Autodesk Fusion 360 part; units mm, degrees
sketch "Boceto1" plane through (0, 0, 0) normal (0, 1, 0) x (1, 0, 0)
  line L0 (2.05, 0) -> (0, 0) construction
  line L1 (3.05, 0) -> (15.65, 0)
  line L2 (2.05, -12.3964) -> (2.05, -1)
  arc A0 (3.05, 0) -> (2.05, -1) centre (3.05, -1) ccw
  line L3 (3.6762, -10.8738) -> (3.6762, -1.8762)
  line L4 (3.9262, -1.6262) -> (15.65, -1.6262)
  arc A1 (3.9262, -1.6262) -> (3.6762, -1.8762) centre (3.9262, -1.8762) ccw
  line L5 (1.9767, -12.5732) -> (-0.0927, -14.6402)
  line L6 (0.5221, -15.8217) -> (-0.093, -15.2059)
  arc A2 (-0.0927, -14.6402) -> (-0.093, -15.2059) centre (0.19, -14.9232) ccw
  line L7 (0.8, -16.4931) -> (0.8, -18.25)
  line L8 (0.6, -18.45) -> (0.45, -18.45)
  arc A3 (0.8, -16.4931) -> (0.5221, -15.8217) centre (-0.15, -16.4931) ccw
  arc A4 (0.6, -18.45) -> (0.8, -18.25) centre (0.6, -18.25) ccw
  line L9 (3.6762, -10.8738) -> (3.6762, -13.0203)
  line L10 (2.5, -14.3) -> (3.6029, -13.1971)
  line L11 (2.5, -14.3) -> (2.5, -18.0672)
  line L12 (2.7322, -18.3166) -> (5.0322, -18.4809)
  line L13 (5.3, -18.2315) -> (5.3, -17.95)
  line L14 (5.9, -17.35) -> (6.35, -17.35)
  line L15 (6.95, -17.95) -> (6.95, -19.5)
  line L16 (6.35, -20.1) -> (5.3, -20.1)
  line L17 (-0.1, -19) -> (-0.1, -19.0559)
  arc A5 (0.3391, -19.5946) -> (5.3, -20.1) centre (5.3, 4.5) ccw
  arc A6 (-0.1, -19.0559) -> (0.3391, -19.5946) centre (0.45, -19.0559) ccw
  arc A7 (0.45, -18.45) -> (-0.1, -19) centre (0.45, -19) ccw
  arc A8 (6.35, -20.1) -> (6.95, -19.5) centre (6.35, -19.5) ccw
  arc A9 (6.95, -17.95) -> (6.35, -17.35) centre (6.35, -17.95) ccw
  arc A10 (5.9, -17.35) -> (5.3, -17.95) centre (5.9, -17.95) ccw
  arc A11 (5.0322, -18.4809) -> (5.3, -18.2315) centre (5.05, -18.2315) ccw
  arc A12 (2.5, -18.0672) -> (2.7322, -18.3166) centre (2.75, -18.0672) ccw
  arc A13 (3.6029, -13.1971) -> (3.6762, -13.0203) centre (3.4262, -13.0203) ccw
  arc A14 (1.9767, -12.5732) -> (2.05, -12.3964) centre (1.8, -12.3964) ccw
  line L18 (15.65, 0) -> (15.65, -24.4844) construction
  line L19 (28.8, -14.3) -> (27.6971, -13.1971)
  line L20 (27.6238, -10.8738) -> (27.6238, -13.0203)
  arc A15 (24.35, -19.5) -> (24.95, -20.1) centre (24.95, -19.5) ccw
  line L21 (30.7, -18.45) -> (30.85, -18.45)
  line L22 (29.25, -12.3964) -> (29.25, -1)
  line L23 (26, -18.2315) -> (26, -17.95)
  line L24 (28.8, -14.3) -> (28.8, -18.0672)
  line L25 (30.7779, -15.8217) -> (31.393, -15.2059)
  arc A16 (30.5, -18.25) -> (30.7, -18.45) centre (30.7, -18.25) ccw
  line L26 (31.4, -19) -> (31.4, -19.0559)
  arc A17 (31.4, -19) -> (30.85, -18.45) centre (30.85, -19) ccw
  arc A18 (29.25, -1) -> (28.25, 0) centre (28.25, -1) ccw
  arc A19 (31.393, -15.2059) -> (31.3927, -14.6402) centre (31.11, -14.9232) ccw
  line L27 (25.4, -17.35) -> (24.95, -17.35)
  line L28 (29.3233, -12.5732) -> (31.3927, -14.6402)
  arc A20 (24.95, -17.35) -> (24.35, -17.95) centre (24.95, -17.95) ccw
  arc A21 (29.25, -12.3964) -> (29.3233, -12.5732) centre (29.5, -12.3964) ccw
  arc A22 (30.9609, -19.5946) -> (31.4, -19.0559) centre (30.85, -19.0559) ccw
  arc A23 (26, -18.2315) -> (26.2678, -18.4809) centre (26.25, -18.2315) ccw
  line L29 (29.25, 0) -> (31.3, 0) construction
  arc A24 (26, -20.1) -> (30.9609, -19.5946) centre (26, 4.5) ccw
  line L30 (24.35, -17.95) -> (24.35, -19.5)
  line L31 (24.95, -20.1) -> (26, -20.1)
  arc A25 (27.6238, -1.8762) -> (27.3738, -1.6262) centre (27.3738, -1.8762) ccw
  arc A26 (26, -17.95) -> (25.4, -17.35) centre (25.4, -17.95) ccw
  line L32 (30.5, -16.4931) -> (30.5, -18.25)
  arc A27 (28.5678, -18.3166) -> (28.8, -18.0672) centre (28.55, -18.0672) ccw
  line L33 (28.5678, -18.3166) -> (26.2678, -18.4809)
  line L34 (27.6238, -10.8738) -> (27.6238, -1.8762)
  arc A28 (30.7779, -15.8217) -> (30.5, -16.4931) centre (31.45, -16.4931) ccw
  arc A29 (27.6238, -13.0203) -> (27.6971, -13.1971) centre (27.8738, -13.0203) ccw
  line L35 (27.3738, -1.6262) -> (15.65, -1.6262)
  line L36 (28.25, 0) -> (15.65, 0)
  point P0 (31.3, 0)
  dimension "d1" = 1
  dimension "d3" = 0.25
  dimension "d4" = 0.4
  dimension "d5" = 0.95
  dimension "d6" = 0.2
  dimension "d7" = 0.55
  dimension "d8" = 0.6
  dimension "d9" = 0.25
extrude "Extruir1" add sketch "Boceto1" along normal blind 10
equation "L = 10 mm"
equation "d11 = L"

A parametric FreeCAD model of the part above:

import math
import FreeCAD as App
import Part
import Sketcher
from FreeCAD import Vector

doc = App.newDocument("Part")
body = doc.addObject("PartDesign::Body", "Body")

# Sketch on XZ plane
sketch1 = body.newObject("Sketcher::SketchObject", "Sketch")
sketch1.AttachmentSupport = (doc.getObject("XZ_Plane"), [""])
sketch1.MapMode = "FlatFace"
sketch1.addGeometry(Part.LineSegment(Vector(28.25, 0, 0), Vector(3.05, 0, 0)), False)
sketch1.addGeometry(Part.ArcOfCircle(Part.Circle(Vector(3.05, 1, 0), Vector(0, 0, 1), 1), math.radians(180), math.radians(270)), False)
sketch1.addGeometry(Part.LineSegment(Vector(2.05, 1, 0), Vector(2.05, 12.4, 0)), False)
sketch1.addGeometry(Part.ArcOfCircle(Part.Circle(Vector(1.8, 12.4, 0), Vector(0, 0, 1), 0.25), math.radians(0), math.radians(45)), False)
sketch1.addGeometry(Part.LineSegment(Vector(1.98, 12.57, 0), Vector(-0.09, 14.64, 0)), False)
sketch1.addGeometry(Part.ArcOfCircle(Part.Circle(Vector(0.19, 14.92, 0), Vector(0, 0, 1), 0.4), math.radians(135), math.radians(225)), False)
sketch1.addGeometry(Part.LineSegment(Vector(-0.09, 15.21, 0), Vector(0.52, 15.82, 0)), False)
sketch1.addGeometry(Part.ArcOfCircle(Part.Circle(Vector(-0.15, 16.49, 0), Vector(0, 0, 1), 0.95), math.radians(-45), math.radians(0)), False)
sketch1.addGeometry(Part.LineSegment(Vector(0.8, 16.49, 0), Vector(0.8, 18.25, 0)), False)
sketch1.addGeometry(Part.ArcOfCircle(Part.Circle(Vector(0.6, 18.25, 0), Vector(0, 0, 1), 0.2), math.radians(0), math.radians(90)), False)
sketch1.addGeometry(Part.LineSegment(Vector(0.6, 18.45, 0), Vector(0.45, 18.45, 0)), False)
sketch1.addGeometry(Part.ArcOfCircle(Part.Circle(Vector(0.45, 19, 0), Vector(0, 0, 1), 0.55), math.radians(180), math.radians(270)), False)
sketch1.addGeometry(Part.LineSegment(Vector(-0.1, 19, 0), Vector(-0.1, 19.06, 0)), False)
sketch1.addGeometry(Part.ArcOfCircle(Part.Circle(Vector(0.45, 19.06, 0), Vector(0, 0, 1), 0.55), math.radians(102), math.radians(180)), False)
sketch1.addGeometry(Part.ArcOfCircle(Part.Circle(Vector(5.3, -4.5, 0), Vector(0, 0, 1), 24.6), math.radians(90), math.radians(101.63)), False)
sketch1.addGeometry(Part.LineSegment(Vector(5.3, 20.1, 0), Vector(6.35, 20.1, 0)), False)
sketch1.addGeometry(Part.ArcOfCircle(Part.Circle(Vector(6.35, 19.5, 0), Vector(0, 0, 1), 0.6), math.radians(0), math.radians(90)), False)
sketch1.addGeometry(Part.LineSegment(Vector(6.95, 19.5, 0), Vector(6.95, 17.95, 0)), False)
sketch1.addGeometry(Part.ArcOfCircle(Part.Circle(Vector(6.35, 17.95, 0), Vector(0, 0, 1), 0.6), math.radians(-90), math.radians(0)), False)
sketch1.addGeometry(Part.LineSegment(Vector(6.35, 17.35, 0), Vector(5.9, 17.35, 0)), False)
sketch1.addGeometry(Part.ArcOfCircle(Part.Circle(Vector(5.9, 17.95, 0), Vector(0, 0, 1), 0.6), math.radians(180), math.radians(270)), False)
sketch1.addGeometry(Part.LineSegment(Vector(5.3, 17.95, 0), Vector(5.3, 18.23, 0)), False)
sketch1.addGeometry(Part.ArcOfCircle(Part.Circle(Vector(5.05, 18.23, 0), Vector(0, 0, 1), 0.25), math.radians(0), math.radians(94)), False)
sketch1.addGeometry(Part.LineSegment(Vector(5.03, 18.48, 0), Vector(2.73, 18.32, 0)), False)
sketch1.addGeometry(Part.ArcOfCircle(Part.Circle(Vector(2.75, 18.07, 0), Vector(0, 0, 1), 0.25), math.radians(94), math.radians(180)), False)
sketch1.addGeometry(Part.LineSegment(Vector(2.5, 18.07, 0), Vector(2.5, 14.3, 0)), False)
sketch1.addGeometry(Part.LineSegment(Vector(2.5, 14.3, 0), Vector(3.6, 13.2, 0)), False)
sketch1.addGeometry(Part.ArcOfCircle(Part.Circle(Vector(3.43, 13.02, 0), Vector(0, 0, 1), 0.25), math.radians(0), math.radians(45)), False)
sketch1.addGeometry(Part.LineSegment(Vector(3.68, 13.02, 0), Vector(3.68, 1.88, 0)), False)
sketch1.addGeometry(Part.ArcOfCircle(Part.Circle(Vector(3.93, 1.88, 0), Vector(0, 0, 1), 0.25), math.radians(180), math.radians(270)), False)
sketch1.addGeometry(Part.LineSegment(Vector(3.93, 1.63, 0), Vector(27.37, 1.63, 0)), False)
sketch1.addGeometry(Part.ArcOfCircle(Part.Circle(Vector(27.37, 1.88, 0), Vector(0, 0, 1), 0.25), math.radians(-90), math.radians(0)), False)
sketch1.addGeometry(Part.LineSegment(Vector(27.62, 1.88, 0), Vector(27.62, 13.02, 0)), False)
sketch1.addGeometry(Part.ArcOfCircle(Part.Circle(Vector(27.87, 13.02, 0), Vector(0, 0, 1), 0.25), math.radians(135), math.radians(180)), False)
sketch1.addGeometry(Part.LineSegment(Vector(27.7, 13.2, 0), Vector(28.8, 14.3, 0)), False)
sketch1.addGeometry(Part.LineSegment(Vector(28.8, 14.3, 0), Vector(28.8, 18.07, 0)), False)
sketch1.addGeometry(Part.ArcOfCircle(Part.Circle(Vector(28.55, 18.07, 0), Vector(0, 0, 1), 0.25), math.radians(0), math.radians(86)), False)
sketch1.addGeometry(Part.LineSegment(Vector(28.57, 18.32, 0), Vector(26.27, 18.48, 0)), False)
sketch1.addGeometry(Part.ArcOfCircle(Part.Circle(Vector(26.25, 18.23, 0), Vector(0, 0, 1), 0.25), math.radians(86), math.radians(180)), False)
sketch1.addGeometry(Part.LineSegment(Vector(26, 18.23, 0), Vector(26, 17.95, 0)), False)
sketch1.addGeometry(Part.ArcOfCircle(Part.Circle(Vector(25.4, 17.95, 0), Vector(0, 0, 1), 0.6), math.radians(-90), math.radians(0)), False)
sketch1.addGeometry(Part.LineSegment(Vector(25.4, 17.35, 0), Vector(24.95, 17.35, 0)), False)
sketch1.addGeometry(Part.ArcOfCircle(Part.Circle(Vector(24.95, 17.95, 0), Vector(0, 0, 1), 0.6), math.radians(180), math.radians(270)), False)
sketch1.addGeometry(Part.LineSegment(Vector(24.35, 17.95, 0), Vector(24.35, 19.5, 0)), False)
sketch1.addGeometry(Part.ArcOfCircle(Part.Circle(Vector(24.95, 19.5, 0), Vector(0, 0, 1), 0.6), math.radians(90), math.radians(180)), False)
sketch1.addGeometry(Part.LineSegment(Vector(24.95, 20.1, 0), Vector(26, 20.1, 0)), False)
sketch1.addGeometry(Part.ArcOfCircle(Part.Circle(Vector(26, -4.5, 0), Vector(0, 0, 1), 24.6), math.radians(78.37), math.radians(90)), False)
sketch1.addGeometry(Part.ArcOfCircle(Part.Circle(Vector(30.85, 19.06, 0), Vector(0, 0, 1), 0.55), math.radians(0), math.radians(78)), False)
sketch1.addGeometry(Part.LineSegment(Vector(31.4, 19.06, 0), Vector(31.4, 19, 0)), False)
sketch1.addGeometry(Part.ArcOfCircle(Part.Circle(Vector(30.85, 19, 0), Vector(0, 0, 1), 0.55), math.radians(-90), math.radians(0)), False)
sketch1.addGeometry(Part.LineSegment(Vector(30.85, 18.45, 0), Vector(30.7, 18.45, 0)), False)
sketch1.addGeometry(Part.ArcOfCircle(Part.Circle(Vector(30.7, 18.25, 0), Vector(0, 0, 1), 0.2), math.radians(90), math.radians(180)), False)
sketch1.addGeometry(Part.LineSegment(Vector(30.5, 18.25, 0), Vector(30.5, 16.49, 0)), False)
sketch1.addGeometry(Part.ArcOfCircle(Part.Circle(Vector(31.45, 16.49, 0), Vector(0, 0, 1), 0.95), math.radians(180), math.radians(225)), False)
sketch1.addGeometry(Part.LineSegment(Vector(30.78, 15.82, 0), Vector(31.39, 15.21, 0)), False)
sketch1.addGeometry(Part.ArcOfCircle(Part.Circle(Vector(31.11, 14.92, 0), Vector(0, 0, 1), 0.4), math.radians(-45), math.radians(45)), False)
sketch1.addGeometry(Part.LineSegment(Vector(31.39, 14.64, 0), Vector(29.32, 12.57, 0)), False)
sketch1.addGeometry(Part.ArcOfCircle(Part.Circle(Vector(29.5, 12.4, 0), Vector(0, 0, 1), 0.25), math.radians(135), math.radians(180)), False)
sketch1.addGeometry(Part.LineSegment(Vector(29.25, 12.4, 0), Vector(29.25, 1, 0)), False)
sketch1.addGeometry(Part.ArcOfCircle(Part.Circle(Vector(28.25, 1, 0), Vector(0, 0, 1), 1), math.radians(-90), math.radians(0)), False)
sketch1.addConstraint(Sketcher.Constraint("Tangent", 0, 2, 1, 2))
sketch1.addConstraint(Sketcher.Constraint("Tangent", 1, 1, 2, 1))
sketch1.addConstraint(Sketcher.Constraint("Tangent", 2, 2, 3, 1))
sketch1.addConstraint(Sketcher.Constraint("Tangent", 3, 2, 4, 1))
sketch1.addConstraint(Sketcher.Constraint("Tangent", 4, 2, 5, 2))
sketch1.addConstraint(Sketcher.Constraint("Tangent", 5, 1, 6, 1))
sketch1.addConstraint(Sketcher.Constraint("Tangent", 6, 2, 7, 1))
sketch1.addConstraint(Sketcher.Constraint("Tangent", 7, 2, 8, 1))
sketch1.addConstraint(Sketcher.Constraint("Tangent", 8, 2, 9, 1))
sketch1.addConstraint(Sketcher.Constraint("Tangent", 9, 2, 10, 1))
sketch1.addConstraint(Sketcher.Constraint("Tangent", 10, 2, 11, 2))
sketch1.addConstraint(Sketcher.Constraint("Tangent", 11, 1, 12, 1))
sketch1.addConstraint(Sketcher.Constraint("Tangent", 12, 2, 13, 2))
sketch1.addConstraint(Sketcher.Constraint("Tangent", 13, 1, 14, 2))
sketch1.addConstraint(Sketcher.Constraint("Tangent", 14, 1, 15, 1))
sketch1.addConstraint(Sketcher.Constraint("Tangent", 15, 2, 16, 2))
sketch1.addConstraint(Sketcher.Constraint("Tangent", 16, 1, 17, 1))
sketch1.addConstraint(Sketcher.Constraint("Tangent", 17, 2, 18, 2))
sketch1.addConstraint(Sketcher.Constraint("Tangent", 18, 1, 19, 1))
sketch1.addConstraint(Sketcher.Constraint("Tangent", 19, 2, 20, 2))
sketch1.addConstraint(Sketcher.Constraint("Tangent", 20, 1, 21, 1))
sketch1.addConstraint(Sketcher.Constraint("Tangent", 21, 2, 22, 1))
sketch1.addConstraint(Sketcher.Constraint("Tangent", 22, 2, 23, 1))
sketch1.addConstraint(Sketcher.Constraint("Tangent", 23, 2, 24, 1))
sketch1.addConstraint(Sketcher.Constraint("Tangent", 24, 2, 25, 1))
sketch1.addConstraint(Sketcher.Constraint("Coincident", 25, 2, 26, 1))
sketch1.addConstraint(Sketcher.Constraint("Tangent", 26, 2, 27, 2))
sketch1.addConstraint(Sketcher.Constraint("Tangent", 27, 1, 28, 1))
sketch1.addConstraint(Sketcher.Constraint("Tangent", 28, 2, 29, 1))
sketch1.addConstraint(Sketcher.Constraint("Tangent", 29, 2, 30, 1))
sketch1.addConstraint(Sketcher.Constraint("Tangent", 30, 2, 31, 1))
sketch1.addConstraint(Sketcher.Constraint("Tangent", 31, 2, 32, 1))
sketch1.addConstraint(Sketcher.Constraint("Tangent", 32, 2, 33, 2))
sketch1.addConstraint(Sketcher.Constraint("Tangent", 33, 1, 34, 1))
sketch1.addConstraint(Sketcher.Constraint("Coincident", 34, 2, 35, 1))
sketch1.addConstraint(Sketcher.Constraint("Tangent", 35, 2, 36, 1))
sketch1.addConstraint(Sketcher.Constraint("Tangent", 36, 2, 37, 1))
sketch1.addConstraint(Sketcher.Constraint("Tangent", 37, 2, 38, 1))
sketch1.addConstraint(Sketcher.Constraint("Tangent", 38, 2, 39, 1))
sketch1.addConstraint(Sketcher.Constraint("Tangent", 39, 2, 40, 2))
sketch1.addConstraint(Sketcher.Constraint("Tangent", 40, 1, 41, 1))
sketch1.addConstraint(Sketcher.Constraint("Tangent", 41, 2, 42, 2))
sketch1.addConstraint(Sketcher.Constraint("Tangent", 42, 1, 43, 1))
sketch1.addConstraint(Sketcher.Constraint("Tangent", 43, 2, 44, 2))
sketch1.addConstraint(Sketcher.Constraint("Tangent", 44, 1, 45, 1))
sketch1.addConstraint(Sketcher.Constraint("Tangent", 45, 2, 46, 2))
sketch1.addConstraint(Sketcher.Constraint("Tangent", 46, 1, 47, 2))
sketch1.addConstraint(Sketcher.Constraint("Tangent", 47, 1, 48, 1))
sketch1.addConstraint(Sketcher.Constraint("Tangent", 48, 2, 49, 2))
sketch1.addConstraint(Sketcher.Constraint("Tangent", 49, 1, 50, 1))
sketch1.addConstraint(Sketcher.Constraint("Tangent", 50, 2, 51, 1))
sketch1.addConstraint(Sketcher.Constraint("Tangent", 51, 2, 52, 1))
sketch1.addConstraint(Sketcher.Constraint("Tangent", 52, 2, 53, 1))
sketch1.addConstraint(Sketcher.Constraint("Tangent", 53, 2, 54, 1))
sketch1.addConstraint(Sketcher.Constraint("Tangent", 54, 2, 55, 2))
sketch1.addConstraint(Sketcher.Constraint("Tangent", 55, 1, 56, 1))
sketch1.addConstraint(Sketcher.Constraint("Tangent", 56, 2, 57, 1))
sketch1.addConstraint(Sketcher.Constraint("Tangent", 57, 2, 58, 1))
sketch1.addConstraint(Sketcher.Constraint("Tangent", 58, 2, 59, 2))
sketch1.addConstraint(Sketcher.Constraint("Tangent", 59, 1, 0, 1))
sketch1.addConstraint(Sketcher.Constraint("Horizontal", 0))
sketch1.addConstraint(Sketcher.Constraint("Vertical", 2))
sketch1.addConstraint(Sketcher.Constraint("Vertical", 8))
sketch1.addConstraint(Sketcher.Constraint("Horizontal", 10))
sketch1.addConstraint(Sketcher.Constraint("Vertical", 12))
sketch1.addConstraint(Sketcher.Constraint("Horizontal", 15))
sketch1.addConstraint(Sketcher.Constraint("Vertical", 17))
sketch1.addConstraint(Sketcher.Constraint("Horizontal", 19))
sketch1.addConstraint(Sketcher.Constraint("Vertical", 21))
sketch1.addConstraint(Sketcher.Constraint("Vertical", 25))
sketch1.addConstraint(Sketcher.Constraint("Vertical", 28))
sketch1.addConstraint(Sketcher.Constraint("Horizontal", 30))
sketch1.addConstraint(Sketcher.Constraint("Vertical", 32))
sketch1.addConstraint(Sketcher.Constraint("Vertical", 35))
sketch1.addConstraint(Sketcher.Constraint("Vertical", 39))
sketch1.addConstraint(Sketcher.Constraint("Horizontal", 41))
sketch1.addConstraint(Sketcher.Constraint("Vertical", 43))
sketch1.addConstraint(Sketcher.Constraint("Horizontal", 45))
sketch1.addConstraint(Sketcher.Constraint("Vertical", 48))
sketch1.addConstraint(Sketcher.Constraint("Horizontal", 50))
sketch1.addConstraint(Sketcher.Constraint("Vertical", 52))
sketch1.addConstraint(Sketcher.Constraint("Vertical", 58))
sketch1.addConstraint(Sketcher.Constraint("Equal", 11, 13))
sketch1.addConstraint(Sketcher.Constraint("Equal", 16, 18))
sketch1.addConstraint(Sketcher.Constraint("Equal", 18, 20))
sketch1.addConstraint(Sketcher.Constraint("Equal", 3, 22))
sketch1.addConstraint(Sketcher.Constraint("Equal", 22, 24))
sketch1.addConstraint(Sketcher.Constraint("Equal", 24, 27))
sketch1.addConstraint(Sketcher.Constraint("Equal", 27, 29))
sketch1.addConstraint(Sketcher.Constraint("Equal", 29, 31))
sketch1.addConstraint(Sketcher.Constraint("Equal", 31, 33))
sketch1.addConstraint(Sketcher.Constraint("Equal", 33, 36))
sketch1.addConstraint(Sketcher.Constraint("Equal", 36, 38))
sketch1.addConstraint(Sketcher.Constraint("Equal", 20, 40))
sketch1.addConstraint(Sketcher.Constraint("Equal", 40, 42))
sketch1.addConstraint(Sketcher.Constraint("Equal", 42, 44))
sketch1.addConstraint(Sketcher.Constraint("Equal", 14, 46))
sketch1.addConstraint(Sketcher.Constraint("Equal", 13, 47))
sketch1.addConstraint(Sketcher.Constraint("Equal", 47, 49))
sketch1.addConstraint(Sketcher.Constraint("Equal", 9, 51))
sketch1.addConstraint(Sketcher.Constraint("Equal", 7, 53))
sketch1.addConstraint(Sketcher.Constraint("Equal", 5, 55))
sketch1.addConstraint(Sketcher.Constraint("Equal", 38, 57))
sketch1.addConstraint(Sketcher.Constraint("Equal", 1, 59))
sketch1.addConstraint(Sketcher.Constraint("PointOnObject", 0, 2, -1))
sketch1.addConstraint(Sketcher.Constraint("Perpendicular", 4, 6))
sketch1.addConstraint(Sketcher.Constraint("Perpendicular", 26, 34))
sketch1.addConstraint(Sketcher.Constraint("Perpendicular", 54, 56))
sketch1.addConstraint(Sketcher.Constraint("Horizontal", 27, 3, 33, 3))
sketch1.addConstraint(Sketcher.Constraint("Horizontal", 24, 3, 36, 3))
sketch1.addConstraint(Sketcher.Constraint("Horizontal", 22, 3, 38, 3))
sketch1.addConstraint(Sketcher.Constraint("Horizontal", 20, 3, 40, 3))
sketch1.addConstraint(Sketcher.Constraint("Horizontal", 16, 3, 44, 3))
sketch1.addConstraint(Sketcher.Constraint("Horizontal", 13, 3, 47, 3))
sketch1.addConstraint(Sketcher.Constraint("Horizontal", 11, 3, 49, 3))
sketch1.addConstraint(Sketcher.Constraint("Horizontal", 7, 3, 53, 3))
sketch1.addConstraint(Sketcher.Constraint("Horizontal", 5, 3, 55, 3))
sketch1.addConstraint(Sketcher.Constraint("Horizontal", 3, 3, 57, 3))
sketch1.addConstraint(Sketcher.Constraint("Horizontal", 26, 2, 33, 1))
sketch1.addConstraint(Sketcher.Constraint("Horizontal", 25, 2, 34, 2))
sketch1.addConstraint(Sketcher.Constraint("Horizontal", 6, 2, 53, 2))
sketch1.addConstraint(Sketcher.Constraint("Vertical", 14, 1, 20, 1))
sketch1.addConstraint(Sketcher.Constraint("Vertical", 46, 3, 38, 2))
sketch1.addConstraint(Sketcher.Constraint("Equal", 19, 41))
sketch1.addConstraint(Sketcher.Constraint("Equal", 10, 50))
sketch1.addConstraint(Sketcher.Constraint("Equal", 23, 37))
sketch1.addConstraint(Sketcher.Constraint("Radius", 1, 1.0))
sketch1.addConstraint(Sketcher.Constraint("Radius", 5, 0.4))
sketch1.addConstraint(Sketcher.Constraint("Radius", 9, 0.2))
sketch1.addConstraint(Sketcher.Constraint("Radius", 16, 0.6))
sketch1.addConstraint(Sketcher.Constraint("Radius", 3, 0.25))
sketch1.addConstraint(Sketcher.Constraint("Radius", 7, 0.95))
sketch1.addConstraint(Sketcher.Constraint("Radius", 11, 0.55))
sketch1.addConstraint(Sketcher.Constraint("DistanceX", -1, 1, 9, 3, 0.6))
sketch1.addConstraint(Sketcher.Constraint("Radius", 14, 24.6))
sketch1.addConstraint(Sketcher.Constraint("DistanceX", 0, 2, 0, 1, 25.2))
sketch1.addConstraint(Sketcher.Constraint("DistanceY", -1, 1, 11, 3, 19.0))
sketch1.addConstraint(Sketcher.Constraint("DistanceX", -1, 1, 46, 3, 26.0))
sketch1.addConstraint(Sketcher.Constraint("DistanceX", 10, 2, 10, 1, 0.15))
sketch1.addConstraint(Sketcher.Constraint("DistanceX", 15, 1, 15, 2, 1.05))
sketch1.addConstraint(Sketcher.Constraint("DistanceY", 17, 2, 17, 1, 1.55))
sketch1.addConstraint(Sketcher.Constraint("DistanceX", -1, 1, 3, 3, 1.8))
sketch1.addConstraint(Sketcher.Constraint("DistanceY", 14, 3, -1, 1, 4.5))
sketch1.addConstraint(Sketcher.Constraint("DistanceX", -1, 1, 24, 2, 2.5))
sketch1.addConstraint(Sketcher.Constraint("DistanceY", -1, 1, 25, 2, 14.3))
sketch1.addConstraint(Sketcher.Constraint("DistanceY", 8, 1, 8, 2, 1.757))
sketch1.addConstraint(Sketcher.Constraint("DistanceY", 28, 2, 28, 1, 11.144))
sketch1.addConstraint(Sketcher.Constraint("DistanceX", -1, 1, 5, 3, 0.19))
sketch1.addConstraint(Sketcher.Constraint("DistanceX", 30, 1, 30, 2, 23.4476))
sketch1.addConstraint(Sketcher.Constraint("DistanceY", 2, 1, 2, 2, 11.3964))
sketch1.addConstraint(Sketcher.Constraint("DistanceY", 21, 1, 21, 2, 0.2815))
sketch1.addConstraint(Sketcher.Constraint("DistanceY", 25, 2, 25, 1, 3.7672))
pad1 = body.newObject("PartDesign::Pad", "Pad")
pad1.Profile = sketch1
pad1.Length = 10
pad1.Reversed = True

doc.recompute()
